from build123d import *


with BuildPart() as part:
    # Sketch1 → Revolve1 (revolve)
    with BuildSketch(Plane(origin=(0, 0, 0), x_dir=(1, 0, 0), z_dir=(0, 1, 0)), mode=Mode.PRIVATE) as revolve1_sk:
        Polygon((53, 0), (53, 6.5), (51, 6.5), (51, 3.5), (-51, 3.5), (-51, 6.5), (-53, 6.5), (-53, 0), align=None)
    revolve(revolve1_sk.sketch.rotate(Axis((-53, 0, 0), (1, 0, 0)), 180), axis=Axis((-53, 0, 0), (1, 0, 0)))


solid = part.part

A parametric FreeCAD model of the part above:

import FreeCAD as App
import Part
import Sketcher

V = App.Vector
Q = App.Units.Quantity

doc = App.newDocument("Part")
body = doc.addObject("PartDesign::Body", "Body")

sketch1 = body.newObject("Sketcher::SketchObject", "Sketch")
sketch1.AttachmentSupport = (doc.getObject("XZ_Plane"), [""])
sketch1.MapMode = "FlatFace"
sketch1.addGeometry([
    Part.LineSegment(V(53, 0, 0), V(53, -6.5, 0)),
    Part.LineSegment(V(53, -6.5, 0), V(51, -6.5, 0)),
    Part.LineSegment(V(51, -6.5, 0), V(51, -3.5, 0)),
    Part.LineSegment(V(51, -3.5, 0), V(-51, -3.5, 0)),
    Part.LineSegment(V(-51, -3.5, 0), V(-51, -6.5, 0)),
    Part.LineSegment(V(-51, -6.5, 0), V(-53, -6.5, 0)),
    Part.LineSegment(V(-53, -6.5, 0), V(-53, 0, 0)),
    Part.LineSegment(V(-53, 0, 0), V(53, 0, 0)),
], False)
sketch1.addConstraint([
    Sketcher.Constraint("Coincident", 0, 2, 1, 1),
    Sketcher.Constraint("Coincident", 1, 2, 2, 1),
    Sketcher.Constraint("Coincident", 2, 2, 3, 1),
    Sketcher.Constraint("Coincident", 3, 2, 4, 1),
    Sketcher.Constraint("Coincident", 4, 2, 5, 1),
    Sketcher.Constraint("Coincident", 5, 2, 6, 1),
    Sketcher.Constraint("Coincident", 6, 2, 7, 1),
    Sketcher.Constraint("Coincident", 7, 2, 0, 1),
    Sketcher.Constraint("Vertical", 0),
    Sketcher.Constraint("Horizontal", 1),
    Sketcher.Constraint("Vertical", 2),
    Sketcher.Constraint("Horizontal", 3),
    Sketcher.Constraint("Vertical", 4),
    Sketcher.Constraint("Horizontal", 5),
    Sketcher.Constraint("Vertical", 6),
    Sketcher.Constraint("Horizontal", 7),
    Sketcher.Constraint("Symmetric", 6, 2, 7, 2, -1, 1),
    Sketcher.Constraint("Symmetric", 1, 2, 4, 2, -2),
    Sketcher.Constraint("DistanceX", 1, 2, 1, 1, Q("2 mm")),
    Sketcher.Constraint("DistanceX", 3, 2, 3, 1, Q("102 mm")),
    Sketcher.Constraint("DistanceY", 2, 1, 2, 2, Q("3 mm")),
    Sketcher.Constraint("DistanceY", 0, 2, 0, 1, Q("6.5 mm")),
])
revolution = body.newObject("PartDesign::Revolution", "Revolution")
revolution.Profile = sketch1
revolution.ReferenceAxis = (sketch1, ["H_Axis"])
revolution.Angle = 360

doc.recompute()
